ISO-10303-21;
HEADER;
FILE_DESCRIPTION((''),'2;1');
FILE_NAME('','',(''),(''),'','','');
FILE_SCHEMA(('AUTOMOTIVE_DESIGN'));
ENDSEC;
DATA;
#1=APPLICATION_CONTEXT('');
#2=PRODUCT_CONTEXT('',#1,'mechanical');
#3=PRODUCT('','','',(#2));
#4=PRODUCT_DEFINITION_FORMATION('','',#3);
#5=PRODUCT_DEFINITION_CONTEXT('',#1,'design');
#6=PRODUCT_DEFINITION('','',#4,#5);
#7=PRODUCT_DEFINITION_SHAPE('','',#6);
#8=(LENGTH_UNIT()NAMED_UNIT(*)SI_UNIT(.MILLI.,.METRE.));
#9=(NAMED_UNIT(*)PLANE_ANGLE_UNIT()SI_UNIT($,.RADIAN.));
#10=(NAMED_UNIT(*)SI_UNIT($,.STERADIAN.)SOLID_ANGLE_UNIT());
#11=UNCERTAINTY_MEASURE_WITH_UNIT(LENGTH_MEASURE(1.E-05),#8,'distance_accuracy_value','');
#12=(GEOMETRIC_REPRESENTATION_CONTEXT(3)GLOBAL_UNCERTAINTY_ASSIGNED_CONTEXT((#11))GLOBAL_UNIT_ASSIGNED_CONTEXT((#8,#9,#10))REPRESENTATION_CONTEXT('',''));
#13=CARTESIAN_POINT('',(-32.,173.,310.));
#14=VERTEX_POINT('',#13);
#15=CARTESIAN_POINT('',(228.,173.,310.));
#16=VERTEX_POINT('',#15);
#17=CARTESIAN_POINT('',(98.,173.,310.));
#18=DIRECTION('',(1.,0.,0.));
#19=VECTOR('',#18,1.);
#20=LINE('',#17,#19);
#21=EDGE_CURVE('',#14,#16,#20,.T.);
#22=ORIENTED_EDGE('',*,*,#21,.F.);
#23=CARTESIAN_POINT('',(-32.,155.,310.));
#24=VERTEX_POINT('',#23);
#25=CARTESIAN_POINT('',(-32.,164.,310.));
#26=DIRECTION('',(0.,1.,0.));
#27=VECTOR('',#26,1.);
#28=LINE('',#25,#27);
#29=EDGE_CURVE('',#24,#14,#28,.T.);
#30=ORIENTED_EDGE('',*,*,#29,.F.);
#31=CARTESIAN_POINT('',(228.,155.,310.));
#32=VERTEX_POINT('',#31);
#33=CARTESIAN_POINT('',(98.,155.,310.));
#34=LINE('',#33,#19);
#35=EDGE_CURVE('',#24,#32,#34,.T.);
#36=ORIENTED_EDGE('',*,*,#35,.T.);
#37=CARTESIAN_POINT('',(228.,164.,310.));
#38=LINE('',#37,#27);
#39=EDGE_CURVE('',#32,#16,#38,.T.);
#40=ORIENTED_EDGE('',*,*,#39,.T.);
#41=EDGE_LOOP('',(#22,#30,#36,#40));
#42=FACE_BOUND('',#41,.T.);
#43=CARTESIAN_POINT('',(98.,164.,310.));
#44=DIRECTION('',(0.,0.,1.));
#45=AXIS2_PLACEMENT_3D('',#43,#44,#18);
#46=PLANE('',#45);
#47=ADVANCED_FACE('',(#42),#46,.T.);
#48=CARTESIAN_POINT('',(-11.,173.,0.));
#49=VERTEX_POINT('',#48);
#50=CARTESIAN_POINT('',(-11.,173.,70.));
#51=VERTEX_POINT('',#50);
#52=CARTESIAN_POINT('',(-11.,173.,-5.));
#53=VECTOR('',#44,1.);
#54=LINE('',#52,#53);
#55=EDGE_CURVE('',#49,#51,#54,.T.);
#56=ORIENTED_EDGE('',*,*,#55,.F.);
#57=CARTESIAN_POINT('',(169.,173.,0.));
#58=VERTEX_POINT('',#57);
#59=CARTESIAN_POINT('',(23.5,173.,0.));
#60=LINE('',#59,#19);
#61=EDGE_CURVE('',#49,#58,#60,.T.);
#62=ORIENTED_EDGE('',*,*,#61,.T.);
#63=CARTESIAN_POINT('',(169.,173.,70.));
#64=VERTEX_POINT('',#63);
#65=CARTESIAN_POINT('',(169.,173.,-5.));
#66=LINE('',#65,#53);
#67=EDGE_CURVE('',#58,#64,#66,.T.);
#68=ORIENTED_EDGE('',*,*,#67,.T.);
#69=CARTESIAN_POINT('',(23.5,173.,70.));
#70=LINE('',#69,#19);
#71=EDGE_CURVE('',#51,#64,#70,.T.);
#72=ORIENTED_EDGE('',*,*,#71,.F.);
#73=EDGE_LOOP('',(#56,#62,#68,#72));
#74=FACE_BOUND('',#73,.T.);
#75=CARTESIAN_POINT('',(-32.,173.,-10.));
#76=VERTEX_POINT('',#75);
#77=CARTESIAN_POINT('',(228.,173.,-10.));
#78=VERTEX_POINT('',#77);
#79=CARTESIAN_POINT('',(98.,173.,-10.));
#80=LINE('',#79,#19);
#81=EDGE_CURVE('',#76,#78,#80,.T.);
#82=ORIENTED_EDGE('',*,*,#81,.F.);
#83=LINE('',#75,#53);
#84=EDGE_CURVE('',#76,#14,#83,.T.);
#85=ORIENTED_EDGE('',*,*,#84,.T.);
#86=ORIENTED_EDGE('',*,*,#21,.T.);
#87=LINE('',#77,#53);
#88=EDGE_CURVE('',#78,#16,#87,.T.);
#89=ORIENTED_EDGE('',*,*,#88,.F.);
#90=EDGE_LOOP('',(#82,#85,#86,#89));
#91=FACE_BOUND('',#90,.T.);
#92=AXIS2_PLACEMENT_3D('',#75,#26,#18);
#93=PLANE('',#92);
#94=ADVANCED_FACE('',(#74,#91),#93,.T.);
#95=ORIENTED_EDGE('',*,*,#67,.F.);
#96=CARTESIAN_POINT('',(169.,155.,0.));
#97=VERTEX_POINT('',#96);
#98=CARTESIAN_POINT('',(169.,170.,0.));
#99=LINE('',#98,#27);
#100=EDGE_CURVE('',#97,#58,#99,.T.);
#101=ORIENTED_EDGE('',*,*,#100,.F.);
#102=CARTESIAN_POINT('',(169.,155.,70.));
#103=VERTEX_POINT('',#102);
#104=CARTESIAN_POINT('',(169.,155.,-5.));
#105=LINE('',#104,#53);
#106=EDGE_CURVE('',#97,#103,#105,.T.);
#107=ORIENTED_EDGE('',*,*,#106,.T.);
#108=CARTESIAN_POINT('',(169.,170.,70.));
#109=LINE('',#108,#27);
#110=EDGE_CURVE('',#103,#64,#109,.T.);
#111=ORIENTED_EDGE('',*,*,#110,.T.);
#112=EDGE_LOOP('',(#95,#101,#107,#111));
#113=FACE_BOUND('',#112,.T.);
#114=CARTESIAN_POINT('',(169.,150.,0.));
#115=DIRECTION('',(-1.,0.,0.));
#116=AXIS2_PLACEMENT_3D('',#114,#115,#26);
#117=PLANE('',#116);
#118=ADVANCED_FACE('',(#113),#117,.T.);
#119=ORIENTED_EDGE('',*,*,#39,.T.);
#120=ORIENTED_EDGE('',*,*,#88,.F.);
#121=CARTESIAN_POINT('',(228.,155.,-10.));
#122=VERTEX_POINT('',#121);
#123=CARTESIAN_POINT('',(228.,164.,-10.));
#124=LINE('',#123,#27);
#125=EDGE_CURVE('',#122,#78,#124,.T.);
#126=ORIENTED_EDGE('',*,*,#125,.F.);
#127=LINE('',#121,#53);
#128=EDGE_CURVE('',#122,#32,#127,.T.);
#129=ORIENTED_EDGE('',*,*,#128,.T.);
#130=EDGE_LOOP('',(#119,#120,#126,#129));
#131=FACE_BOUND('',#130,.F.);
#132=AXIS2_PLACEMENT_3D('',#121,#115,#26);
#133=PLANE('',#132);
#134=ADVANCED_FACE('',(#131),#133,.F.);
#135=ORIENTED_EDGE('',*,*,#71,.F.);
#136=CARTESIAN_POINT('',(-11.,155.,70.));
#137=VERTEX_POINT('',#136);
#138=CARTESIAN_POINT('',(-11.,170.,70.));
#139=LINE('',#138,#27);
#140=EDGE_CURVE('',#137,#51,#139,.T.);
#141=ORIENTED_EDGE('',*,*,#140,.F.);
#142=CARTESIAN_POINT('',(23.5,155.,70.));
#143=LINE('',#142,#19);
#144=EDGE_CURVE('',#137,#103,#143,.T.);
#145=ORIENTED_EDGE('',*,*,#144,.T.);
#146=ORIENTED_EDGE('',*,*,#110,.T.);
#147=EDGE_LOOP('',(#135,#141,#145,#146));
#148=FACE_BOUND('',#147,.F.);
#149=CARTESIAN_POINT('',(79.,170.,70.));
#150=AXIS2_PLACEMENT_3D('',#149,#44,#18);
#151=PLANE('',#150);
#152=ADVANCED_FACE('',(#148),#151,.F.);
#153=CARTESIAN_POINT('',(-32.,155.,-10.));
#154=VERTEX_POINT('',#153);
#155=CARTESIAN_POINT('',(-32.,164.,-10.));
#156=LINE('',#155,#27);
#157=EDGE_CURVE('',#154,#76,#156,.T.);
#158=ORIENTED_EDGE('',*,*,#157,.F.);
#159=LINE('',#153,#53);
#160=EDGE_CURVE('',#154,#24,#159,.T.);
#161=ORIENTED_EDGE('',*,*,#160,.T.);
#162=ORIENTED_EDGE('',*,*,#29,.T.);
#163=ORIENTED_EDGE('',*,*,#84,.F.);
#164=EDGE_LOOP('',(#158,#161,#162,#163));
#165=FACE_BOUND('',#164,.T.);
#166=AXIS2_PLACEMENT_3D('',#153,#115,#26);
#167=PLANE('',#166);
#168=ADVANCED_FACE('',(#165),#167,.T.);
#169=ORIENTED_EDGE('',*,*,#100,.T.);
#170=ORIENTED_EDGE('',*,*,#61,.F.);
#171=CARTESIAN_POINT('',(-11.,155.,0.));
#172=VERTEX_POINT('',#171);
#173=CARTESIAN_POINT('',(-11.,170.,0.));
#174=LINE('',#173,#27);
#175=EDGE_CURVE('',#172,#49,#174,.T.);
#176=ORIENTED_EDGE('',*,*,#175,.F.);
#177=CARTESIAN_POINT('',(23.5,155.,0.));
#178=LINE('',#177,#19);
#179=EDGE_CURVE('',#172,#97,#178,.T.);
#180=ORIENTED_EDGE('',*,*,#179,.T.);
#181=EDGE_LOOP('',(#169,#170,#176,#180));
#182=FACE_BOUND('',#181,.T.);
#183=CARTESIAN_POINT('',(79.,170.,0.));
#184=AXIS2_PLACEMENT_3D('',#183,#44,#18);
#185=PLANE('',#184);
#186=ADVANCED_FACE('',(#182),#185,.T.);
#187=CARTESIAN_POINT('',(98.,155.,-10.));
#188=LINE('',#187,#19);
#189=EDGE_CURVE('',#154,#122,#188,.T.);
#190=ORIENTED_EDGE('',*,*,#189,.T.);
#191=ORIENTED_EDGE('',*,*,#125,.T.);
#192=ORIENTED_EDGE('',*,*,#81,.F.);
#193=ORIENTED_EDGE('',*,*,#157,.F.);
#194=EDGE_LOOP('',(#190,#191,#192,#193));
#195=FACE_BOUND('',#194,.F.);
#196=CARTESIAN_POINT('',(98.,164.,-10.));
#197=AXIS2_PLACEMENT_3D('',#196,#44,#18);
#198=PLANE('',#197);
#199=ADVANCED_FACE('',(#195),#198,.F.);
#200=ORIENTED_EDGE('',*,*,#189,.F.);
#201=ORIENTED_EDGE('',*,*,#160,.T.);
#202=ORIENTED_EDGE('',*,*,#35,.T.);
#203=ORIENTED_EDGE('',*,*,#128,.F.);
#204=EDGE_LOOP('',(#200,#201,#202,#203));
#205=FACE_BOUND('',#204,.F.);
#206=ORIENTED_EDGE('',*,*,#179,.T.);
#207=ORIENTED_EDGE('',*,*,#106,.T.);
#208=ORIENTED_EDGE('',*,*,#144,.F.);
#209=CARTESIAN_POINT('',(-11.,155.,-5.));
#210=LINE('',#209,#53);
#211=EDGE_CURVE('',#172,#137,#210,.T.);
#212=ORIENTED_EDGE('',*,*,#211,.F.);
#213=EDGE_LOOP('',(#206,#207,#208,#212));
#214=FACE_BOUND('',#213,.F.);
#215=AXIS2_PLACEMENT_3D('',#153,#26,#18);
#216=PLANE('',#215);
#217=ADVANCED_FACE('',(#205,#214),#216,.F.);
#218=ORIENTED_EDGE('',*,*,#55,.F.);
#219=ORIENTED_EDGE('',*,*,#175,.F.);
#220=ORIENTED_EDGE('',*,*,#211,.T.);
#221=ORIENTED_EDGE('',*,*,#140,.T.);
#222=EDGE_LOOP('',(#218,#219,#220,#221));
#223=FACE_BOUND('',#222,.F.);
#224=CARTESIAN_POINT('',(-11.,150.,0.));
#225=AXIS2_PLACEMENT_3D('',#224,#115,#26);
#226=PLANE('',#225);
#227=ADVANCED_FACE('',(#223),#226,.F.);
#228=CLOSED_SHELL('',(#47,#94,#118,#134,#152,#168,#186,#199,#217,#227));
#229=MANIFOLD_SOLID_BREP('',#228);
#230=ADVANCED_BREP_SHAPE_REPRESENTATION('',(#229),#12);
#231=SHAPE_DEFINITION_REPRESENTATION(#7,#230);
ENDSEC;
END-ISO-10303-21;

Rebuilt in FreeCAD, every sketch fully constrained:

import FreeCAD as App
import Part
import Sketcher

V = App.Vector
Q = App.Units.Quantity

doc = App.newDocument("Part")
body = doc.addObject("PartDesign::Body", "Body")

# Sketch on XY plane
sketch1 = doc.addObject("Sketcher::SketchObject", "Sketch")
body.addObject(sketch1)
sketch1.AttachmentSupport = (doc.XY_Plane, [""])
sketch1.MapMode = "FlatFace"
sketch1.addGeometry(Part.LineSegment(V(-11, 188, 0), V(-11, 148, 0)), False)
sketch1.addGeometry(Part.LineSegment(V(-11, 148, 0), V(169, 148, 0)), False)
sketch1.addGeometry(Part.LineSegment(V(169, 148, 0), V(169, 188, 0)), False)
sketch1.addGeometry(Part.LineSegment(V(169, 188, 0), V(-11, 188, 0)), False)
sketch1.addConstraint(Sketcher.Constraint("Coincident", 0, 2, 1, 1))
sketch1.addConstraint(Sketcher.Constraint("Coincident", 1, 2, 2, 1))
sketch1.addConstraint(Sketcher.Constraint("Coincident", 2, 2, 3, 1))
sketch1.addConstraint(Sketcher.Constraint("Coincident", 3, 2, 0, 1))
sketch1.addConstraint(Sketcher.Constraint("Vertical", 0))
sketch1.addConstraint(Sketcher.Constraint("Horizontal", 1))
sketch1.addConstraint(Sketcher.Constraint("Vertical", 2))
sketch1.addConstraint(Sketcher.Constraint("Horizontal", 3))
sketch1.addConstraint(Sketcher.Constraint("DistanceX", 1, 1, 1, 2, Q("180 mm")))
sketch1.addConstraint(Sketcher.Constraint("DistanceY", 0, 2, 0, 1, Q("40 mm")))
sketch1.addConstraint(Sketcher.Constraint("DistanceX", 0, 2, -1, 1, Q("11 mm")))
sketch1.addConstraint(Sketcher.Constraint("DistanceY", -1, 1, 0, 2, Q("148 mm")))
pad1 = doc.addObject("PartDesign::Pad", "Pad")
body.addObject(pad1)
pad1.Profile = sketch1
pad1.Length = 70
body2 = doc.addObject("PartDesign::Body", "Body001")

# Sketch on XY plane
sketch2 = doc.addObject("Sketcher::SketchObject", "Sketch001")
body2.addObject(sketch2)
sketch2.AttachmentSupport = (doc.getObject("XY_Plane001"), [""])
sketch2.MapMode = "FlatFace"
sketch2.AttachmentOffset = App.Placement(V(0, 0, -10), App.Rotation())
sketch2.addGeometry(Part.LineSegment(V(-32, 171, 0), V(-32, 153, 0)), False)
sketch2.addGeometry(Part.LineSegment(V(-32, 153, 0), V(228, 153, 0)), False)
sketch2.addGeometry(Part.LineSegment(V(228, 153, 0), V(228, 171, 0)), False)
sketch2.addGeometry(Part.LineSegment(V(228, 171, 0), V(-32, 171, 0)), False)
sketch2.addConstraint(Sketcher.Constraint("Coincident", 0, 2, 1, 1))
sketch2.addConstraint(Sketcher.Constraint("Coincident", 1, 2, 2, 1))
sketch2.addConstraint(Sketcher.Constraint("Coincident", 2, 2, 3, 1))
sketch2.addConstraint(Sketcher.Constraint("Coincident", 3, 2, 0, 1))
sketch2.addConstraint(Sketcher.Constraint("Vertical", 0))
sketch2.addConstraint(Sketcher.Constraint("Horizontal", 1))
sketch2.addConstraint(Sketcher.Constraint("Vertical", 2))
sketch2.addConstraint(Sketcher.Constraint("Horizontal", 3))
sketch2.addConstraint(Sketcher.Constraint("DistanceX", 1, 1, 1, 2, Q("260 mm")))
sketch2.addConstraint(Sketcher.Constraint("DistanceY", 0, 2, 0, 1, Q("18 mm")))
sketch2.addConstraint(Sketcher.Constraint("DistanceX", 0, 2, -1, 1, Q("32 mm")))
sketch2.addConstraint(Sketcher.Constraint("DistanceY", -1, 1, 0, 2, Q("153 mm")))
pad2 = doc.addObject("PartDesign::Pad", "Pad001")
body2.addObject(pad2)
pad2.Profile = sketch2
pad2.Length = 320
doc.recompute()

boolean = doc.addObject("PartDesign::Boolean", "Boolean")
body2.addObject(boolean)
boolean.Type = "Cut"
boolean.addObjects([body])
body3 = doc.addObject("PartDesign::Body", "Body002")
doc.recompute()

body2.Placement = App.Placement(V(0, 2, 0), App.Rotation(V(0, 0, 1), 0))
boolean2 = doc.addObject("PartDesign::Boolean", "Boolean001")
body3.addObject(boolean2)
boolean2.Type = "Fuse"
boolean2.addObjects([body2])

doc.recompute()
